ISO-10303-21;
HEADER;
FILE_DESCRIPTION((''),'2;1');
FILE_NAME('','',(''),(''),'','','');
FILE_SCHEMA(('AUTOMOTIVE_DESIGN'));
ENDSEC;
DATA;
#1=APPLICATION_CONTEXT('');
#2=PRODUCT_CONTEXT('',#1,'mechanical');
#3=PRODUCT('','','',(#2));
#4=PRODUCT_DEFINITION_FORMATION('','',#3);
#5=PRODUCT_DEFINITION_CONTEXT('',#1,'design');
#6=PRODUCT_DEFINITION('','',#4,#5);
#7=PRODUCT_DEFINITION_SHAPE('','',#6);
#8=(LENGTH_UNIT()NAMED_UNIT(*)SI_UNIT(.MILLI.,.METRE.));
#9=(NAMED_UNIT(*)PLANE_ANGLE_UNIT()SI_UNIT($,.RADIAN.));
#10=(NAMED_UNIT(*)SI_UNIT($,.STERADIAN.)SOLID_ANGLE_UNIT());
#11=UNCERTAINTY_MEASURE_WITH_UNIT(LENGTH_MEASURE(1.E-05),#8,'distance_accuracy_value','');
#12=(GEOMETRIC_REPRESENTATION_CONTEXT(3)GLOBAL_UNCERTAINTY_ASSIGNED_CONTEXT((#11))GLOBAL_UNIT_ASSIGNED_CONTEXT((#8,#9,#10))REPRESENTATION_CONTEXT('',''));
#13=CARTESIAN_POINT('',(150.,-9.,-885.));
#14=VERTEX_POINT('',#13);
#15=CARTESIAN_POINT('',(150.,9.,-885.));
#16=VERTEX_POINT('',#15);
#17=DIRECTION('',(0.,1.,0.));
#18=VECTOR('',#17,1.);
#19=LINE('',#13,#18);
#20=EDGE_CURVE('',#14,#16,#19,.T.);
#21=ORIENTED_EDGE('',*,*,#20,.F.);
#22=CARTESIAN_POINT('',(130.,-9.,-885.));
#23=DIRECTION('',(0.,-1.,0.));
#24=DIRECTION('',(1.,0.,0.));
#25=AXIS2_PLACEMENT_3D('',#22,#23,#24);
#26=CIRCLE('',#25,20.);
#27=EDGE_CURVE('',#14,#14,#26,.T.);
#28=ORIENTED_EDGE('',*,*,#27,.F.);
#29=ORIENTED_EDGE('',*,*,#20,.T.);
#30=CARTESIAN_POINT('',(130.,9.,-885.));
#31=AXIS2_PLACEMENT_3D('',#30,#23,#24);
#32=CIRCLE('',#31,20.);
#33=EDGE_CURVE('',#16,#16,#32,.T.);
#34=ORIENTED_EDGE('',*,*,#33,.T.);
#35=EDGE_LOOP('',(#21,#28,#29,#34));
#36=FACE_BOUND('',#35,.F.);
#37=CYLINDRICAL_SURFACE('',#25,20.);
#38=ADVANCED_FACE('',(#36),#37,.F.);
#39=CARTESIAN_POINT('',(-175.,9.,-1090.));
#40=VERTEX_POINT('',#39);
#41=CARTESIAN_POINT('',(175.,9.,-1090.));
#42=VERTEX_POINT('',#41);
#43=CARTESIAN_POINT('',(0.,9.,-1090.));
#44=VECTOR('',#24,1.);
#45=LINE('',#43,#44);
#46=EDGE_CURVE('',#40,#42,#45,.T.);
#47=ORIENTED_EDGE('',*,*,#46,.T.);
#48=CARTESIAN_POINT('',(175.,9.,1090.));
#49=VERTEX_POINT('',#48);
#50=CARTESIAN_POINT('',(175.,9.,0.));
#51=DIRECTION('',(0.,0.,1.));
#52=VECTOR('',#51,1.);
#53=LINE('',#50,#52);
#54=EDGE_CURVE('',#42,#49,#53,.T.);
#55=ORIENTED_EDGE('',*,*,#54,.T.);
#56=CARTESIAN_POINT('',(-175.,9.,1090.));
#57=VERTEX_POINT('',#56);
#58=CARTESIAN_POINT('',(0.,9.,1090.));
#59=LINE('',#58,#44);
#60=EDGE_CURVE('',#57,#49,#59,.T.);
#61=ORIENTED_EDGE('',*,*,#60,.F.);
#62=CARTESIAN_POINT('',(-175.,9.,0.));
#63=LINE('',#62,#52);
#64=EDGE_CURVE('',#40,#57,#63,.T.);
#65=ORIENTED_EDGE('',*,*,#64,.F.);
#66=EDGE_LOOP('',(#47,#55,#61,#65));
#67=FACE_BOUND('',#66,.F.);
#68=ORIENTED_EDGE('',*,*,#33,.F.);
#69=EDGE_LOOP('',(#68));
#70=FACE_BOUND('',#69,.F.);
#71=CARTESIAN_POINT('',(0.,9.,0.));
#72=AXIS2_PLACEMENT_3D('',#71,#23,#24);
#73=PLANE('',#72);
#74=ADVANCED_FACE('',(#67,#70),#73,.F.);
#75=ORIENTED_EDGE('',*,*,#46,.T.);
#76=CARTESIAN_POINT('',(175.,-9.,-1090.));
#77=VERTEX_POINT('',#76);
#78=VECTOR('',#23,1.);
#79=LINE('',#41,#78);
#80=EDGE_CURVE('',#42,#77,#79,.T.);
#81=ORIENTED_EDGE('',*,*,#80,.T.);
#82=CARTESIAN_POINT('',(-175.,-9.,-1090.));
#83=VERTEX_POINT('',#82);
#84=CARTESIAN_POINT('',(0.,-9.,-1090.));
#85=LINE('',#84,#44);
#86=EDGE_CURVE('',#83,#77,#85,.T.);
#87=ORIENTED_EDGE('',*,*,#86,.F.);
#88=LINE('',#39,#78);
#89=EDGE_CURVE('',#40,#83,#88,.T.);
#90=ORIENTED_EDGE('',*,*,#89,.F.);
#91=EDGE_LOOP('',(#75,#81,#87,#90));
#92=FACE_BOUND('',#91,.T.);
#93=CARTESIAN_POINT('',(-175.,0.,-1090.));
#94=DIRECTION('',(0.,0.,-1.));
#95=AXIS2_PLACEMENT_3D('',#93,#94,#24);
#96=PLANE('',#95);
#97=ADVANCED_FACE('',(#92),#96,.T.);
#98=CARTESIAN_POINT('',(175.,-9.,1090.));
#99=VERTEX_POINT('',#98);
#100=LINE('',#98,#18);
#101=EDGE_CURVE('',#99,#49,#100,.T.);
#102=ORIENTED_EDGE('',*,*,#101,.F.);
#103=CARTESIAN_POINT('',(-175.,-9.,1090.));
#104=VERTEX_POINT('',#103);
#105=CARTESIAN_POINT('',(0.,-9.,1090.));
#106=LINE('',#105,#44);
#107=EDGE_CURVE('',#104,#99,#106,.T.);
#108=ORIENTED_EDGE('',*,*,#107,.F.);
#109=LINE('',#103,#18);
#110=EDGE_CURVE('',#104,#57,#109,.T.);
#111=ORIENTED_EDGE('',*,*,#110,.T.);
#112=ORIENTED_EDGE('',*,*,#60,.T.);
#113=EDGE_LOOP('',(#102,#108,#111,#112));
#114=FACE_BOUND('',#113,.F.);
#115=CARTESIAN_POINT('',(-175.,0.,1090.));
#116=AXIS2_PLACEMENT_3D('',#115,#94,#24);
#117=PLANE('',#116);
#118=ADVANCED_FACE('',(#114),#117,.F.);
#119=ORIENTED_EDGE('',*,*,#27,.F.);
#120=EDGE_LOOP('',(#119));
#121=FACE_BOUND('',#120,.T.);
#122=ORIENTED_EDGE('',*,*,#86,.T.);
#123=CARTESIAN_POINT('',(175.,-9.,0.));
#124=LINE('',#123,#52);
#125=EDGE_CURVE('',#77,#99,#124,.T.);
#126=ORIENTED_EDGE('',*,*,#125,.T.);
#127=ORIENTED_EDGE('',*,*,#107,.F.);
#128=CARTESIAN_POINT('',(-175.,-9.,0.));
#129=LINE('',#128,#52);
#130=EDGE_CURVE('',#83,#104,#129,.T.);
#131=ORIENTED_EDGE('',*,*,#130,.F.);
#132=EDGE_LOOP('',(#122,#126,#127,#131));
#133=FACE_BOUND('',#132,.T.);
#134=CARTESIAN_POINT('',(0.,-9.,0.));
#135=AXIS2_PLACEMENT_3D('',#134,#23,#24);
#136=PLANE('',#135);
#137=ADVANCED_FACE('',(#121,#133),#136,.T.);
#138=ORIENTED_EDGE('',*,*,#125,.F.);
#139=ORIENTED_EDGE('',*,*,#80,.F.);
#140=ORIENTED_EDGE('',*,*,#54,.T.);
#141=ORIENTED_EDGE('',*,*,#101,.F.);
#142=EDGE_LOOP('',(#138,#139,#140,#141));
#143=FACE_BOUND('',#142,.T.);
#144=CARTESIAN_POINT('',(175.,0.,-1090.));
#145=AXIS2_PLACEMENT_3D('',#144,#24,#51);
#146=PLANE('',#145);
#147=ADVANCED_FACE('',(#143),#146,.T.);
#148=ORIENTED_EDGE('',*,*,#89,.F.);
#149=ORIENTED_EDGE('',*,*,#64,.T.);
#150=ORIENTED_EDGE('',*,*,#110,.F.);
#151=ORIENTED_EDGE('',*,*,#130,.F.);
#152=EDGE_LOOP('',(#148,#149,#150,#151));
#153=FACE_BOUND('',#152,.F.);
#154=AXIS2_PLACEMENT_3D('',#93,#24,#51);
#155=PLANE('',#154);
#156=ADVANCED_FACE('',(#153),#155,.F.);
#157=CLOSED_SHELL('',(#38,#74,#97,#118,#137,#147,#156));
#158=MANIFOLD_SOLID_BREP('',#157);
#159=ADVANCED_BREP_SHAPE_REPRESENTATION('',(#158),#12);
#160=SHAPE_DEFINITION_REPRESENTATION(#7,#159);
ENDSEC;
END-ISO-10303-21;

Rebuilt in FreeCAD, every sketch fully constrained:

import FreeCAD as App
import Part
import Sketcher

doc = App.newDocument("Part")
body = doc.addObject("PartDesign::Body", "Body")

sketch1 = body.newObject("Sketcher::SketchObject", "Sketch")
sketch1.AttachmentSupport = (doc.getObject("XZ_Plane"), [""])
sketch1.MapMode = "FlatFace"
sketch1.addGeometry(Part.LineSegment(App.Vector(-175, 1090, 0), App.Vector(-175, -1090, 0)), False)
sketch1.addGeometry(Part.LineSegment(App.Vector(-175, -1090, 0), App.Vector(175, -1090, 0)), False)
sketch1.addGeometry(Part.LineSegment(App.Vector(175, -1090, 0), App.Vector(175, 1090, 0)), False)
sketch1.addGeometry(Part.LineSegment(App.Vector(175, 1090, 0), App.Vector(-175, 1090, 0)), False)
sketch1.addConstraint(Sketcher.Constraint("Coincident", 0, 2, 1, 1))
sketch1.addConstraint(Sketcher.Constraint("Coincident", 1, 2, 2, 1))
sketch1.addConstraint(Sketcher.Constraint("Coincident", 2, 2, 3, 1))
sketch1.addConstraint(Sketcher.Constraint("Coincident", 3, 2, 0, 1))
sketch1.addConstraint(Sketcher.Constraint("Vertical", 0))
sketch1.addConstraint(Sketcher.Constraint("Horizontal", 1))
sketch1.addConstraint(Sketcher.Constraint("Vertical", 2))
sketch1.addConstraint(Sketcher.Constraint("Horizontal", 3))
sketch1.addConstraint(Sketcher.Constraint("Symmetric", 0, 2, 2, 2, -1, 1))
sketch1.addConstraint(Sketcher.Constraint("DistanceX", 1, 1, 1, 2, 350.0))
sketch1.addConstraint(Sketcher.Constraint("DistanceY", 0, 2, 0, 1, 2180.0))
pad1 = body.newObject("PartDesign::Pad", "Pad")
pad1.Profile = sketch1
pad1.Length = 18
pad1.Midplane = True

sketch2 = body.newObject("Sketcher::SketchObject", "Sketch001")
sketch2.AttachmentSupport = (doc.getObject("XZ_Plane"), [""])
sketch2.MapMode = "FlatFace"
sketch2.AttachmentOffset = App.Placement(App.Vector(0, 0, 9), App.Rotation())
sketch2.addGeometry(Part.Circle(App.Vector(130, -885, 0), App.Vector(0, 0, 1), 20), False)
sketch2.addConstraint(Sketcher.Constraint("Diameter", 0, 40.0))
sketch2.addConstraint(Sketcher.Constraint("DistanceX", -1, 1, 0, 3, 130.0))
sketch2.addConstraint(Sketcher.Constraint("DistanceY", 0, 3, -1, 1, 885.0))
pocket1 = body.newObject("PartDesign::Pocket", "Pocket")
pocket1.Profile = sketch2
pocket1.Length = 25

doc.recompute()
